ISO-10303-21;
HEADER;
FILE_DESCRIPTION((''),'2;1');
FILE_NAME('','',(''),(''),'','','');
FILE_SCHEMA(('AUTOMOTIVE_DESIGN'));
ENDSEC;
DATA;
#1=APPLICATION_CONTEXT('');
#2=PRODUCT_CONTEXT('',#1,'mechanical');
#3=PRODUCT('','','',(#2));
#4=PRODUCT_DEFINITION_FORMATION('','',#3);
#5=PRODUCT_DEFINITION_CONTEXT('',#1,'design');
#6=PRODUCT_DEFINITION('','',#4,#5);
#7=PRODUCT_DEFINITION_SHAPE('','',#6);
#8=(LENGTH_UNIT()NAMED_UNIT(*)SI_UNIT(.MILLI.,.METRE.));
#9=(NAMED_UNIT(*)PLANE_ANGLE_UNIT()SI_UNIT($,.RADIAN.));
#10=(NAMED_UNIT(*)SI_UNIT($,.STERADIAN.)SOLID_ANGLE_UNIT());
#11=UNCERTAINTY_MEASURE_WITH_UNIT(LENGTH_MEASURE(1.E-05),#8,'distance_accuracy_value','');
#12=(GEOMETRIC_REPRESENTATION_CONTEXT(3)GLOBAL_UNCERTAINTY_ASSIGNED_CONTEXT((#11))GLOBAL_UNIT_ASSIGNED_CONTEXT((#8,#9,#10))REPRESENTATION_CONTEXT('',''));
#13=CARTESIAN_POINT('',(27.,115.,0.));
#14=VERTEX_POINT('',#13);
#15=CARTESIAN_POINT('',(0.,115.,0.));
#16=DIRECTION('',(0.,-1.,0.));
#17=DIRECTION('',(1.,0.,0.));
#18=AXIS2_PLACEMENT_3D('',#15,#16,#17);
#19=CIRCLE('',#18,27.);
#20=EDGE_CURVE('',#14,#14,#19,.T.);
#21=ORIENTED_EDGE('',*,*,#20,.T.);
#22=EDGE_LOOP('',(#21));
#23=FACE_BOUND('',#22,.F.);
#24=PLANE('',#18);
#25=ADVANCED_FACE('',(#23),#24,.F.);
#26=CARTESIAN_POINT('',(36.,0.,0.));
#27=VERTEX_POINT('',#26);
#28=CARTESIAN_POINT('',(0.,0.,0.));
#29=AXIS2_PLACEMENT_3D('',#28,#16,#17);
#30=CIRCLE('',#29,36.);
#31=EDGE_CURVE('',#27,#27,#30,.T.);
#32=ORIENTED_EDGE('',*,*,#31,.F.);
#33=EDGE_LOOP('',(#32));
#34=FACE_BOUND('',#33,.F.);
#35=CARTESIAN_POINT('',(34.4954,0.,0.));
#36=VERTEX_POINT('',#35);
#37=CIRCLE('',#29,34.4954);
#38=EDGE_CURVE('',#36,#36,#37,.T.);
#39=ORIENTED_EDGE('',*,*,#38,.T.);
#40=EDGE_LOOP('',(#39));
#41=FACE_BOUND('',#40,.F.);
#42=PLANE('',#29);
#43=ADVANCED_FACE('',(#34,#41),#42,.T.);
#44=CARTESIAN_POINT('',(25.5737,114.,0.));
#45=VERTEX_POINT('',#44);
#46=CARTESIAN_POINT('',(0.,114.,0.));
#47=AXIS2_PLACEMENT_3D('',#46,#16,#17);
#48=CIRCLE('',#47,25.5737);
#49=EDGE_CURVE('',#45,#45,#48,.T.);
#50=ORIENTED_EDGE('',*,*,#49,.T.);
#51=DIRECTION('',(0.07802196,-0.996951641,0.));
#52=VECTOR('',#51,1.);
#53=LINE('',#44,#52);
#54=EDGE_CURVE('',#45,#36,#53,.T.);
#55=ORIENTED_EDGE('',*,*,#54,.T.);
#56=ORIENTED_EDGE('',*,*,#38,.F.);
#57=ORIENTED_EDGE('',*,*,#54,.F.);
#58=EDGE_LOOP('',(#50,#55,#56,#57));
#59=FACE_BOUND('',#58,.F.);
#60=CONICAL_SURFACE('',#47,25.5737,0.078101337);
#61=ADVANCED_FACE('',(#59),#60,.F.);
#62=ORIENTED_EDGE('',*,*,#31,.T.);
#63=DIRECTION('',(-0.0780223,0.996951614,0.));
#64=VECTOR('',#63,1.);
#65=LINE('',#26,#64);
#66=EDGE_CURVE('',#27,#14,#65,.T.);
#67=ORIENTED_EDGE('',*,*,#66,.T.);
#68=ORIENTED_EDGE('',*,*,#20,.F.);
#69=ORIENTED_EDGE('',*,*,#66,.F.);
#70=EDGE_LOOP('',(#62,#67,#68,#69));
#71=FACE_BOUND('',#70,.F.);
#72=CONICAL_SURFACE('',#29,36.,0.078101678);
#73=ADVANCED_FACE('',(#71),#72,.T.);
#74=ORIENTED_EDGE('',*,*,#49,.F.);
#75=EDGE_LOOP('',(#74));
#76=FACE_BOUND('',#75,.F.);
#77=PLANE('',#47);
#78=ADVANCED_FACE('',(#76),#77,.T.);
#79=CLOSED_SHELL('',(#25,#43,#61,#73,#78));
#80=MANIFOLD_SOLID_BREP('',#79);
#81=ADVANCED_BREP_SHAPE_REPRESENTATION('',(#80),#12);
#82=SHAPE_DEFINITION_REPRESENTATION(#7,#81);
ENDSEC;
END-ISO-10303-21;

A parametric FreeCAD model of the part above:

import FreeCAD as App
import Part
import Sketcher

V = App.Vector

doc = App.newDocument("Part")
body = doc.addObject("PartDesign::Body", "Body")

# Sketch on XY plane
sketch1 = body.newObject("Sketcher::SketchObject", "Sketch")
sketch1.AttachmentSupport = (doc.getObject("XY_Plane"), [""])
sketch1.MapMode = "FlatFace"
sketch1.addGeometry([
    Part.LineSegment(V(25.6, 114, 0), V(34.5, 0, 0)),  # 0
    Part.LineSegment(V(34.5, 0, 0), V(36, 0, 0)),  # 1
    Part.LineSegment(V(36, 0, 0), V(27, 115, 0)),  # 2
    Part.LineSegment(V(27, 115, 0), V(0, 115, 0)),  # 3
    Part.LineSegment(V(0, 115, 0), V(0, 114, 0)),  # 4
    Part.LineSegment(V(0, 114, 0), V(25.6, 114, 0)),  # 5
], False)
sketch1.addConstraint([
    Sketcher.Constraint("Coincident", 0, 2, 1, 1),
    Sketcher.Constraint("Coincident", 1, 2, 2, 1),
    Sketcher.Constraint("Coincident", 2, 2, 3, 1),
    Sketcher.Constraint("Coincident", 3, 2, 4, 1),
    Sketcher.Constraint("Coincident", 4, 2, 5, 1),
    Sketcher.Constraint("Coincident", 5, 2, 0, 1),
    Sketcher.Constraint("Horizontal", 1),
    Sketcher.Constraint("Horizontal", 3),
    Sketcher.Constraint("Vertical", 4),
    Sketcher.Constraint("Horizontal", 5),
    Sketcher.Constraint("PointOnObject", 0, 2, -1),
    Sketcher.Constraint("PointOnObject", 3, 2, -2),
    Sketcher.Constraint("Parallel", 0, 2),
    Sketcher.Constraint("DistanceX", 3, 2, 3, 1, 27.0),
    Sketcher.Constraint("DistanceY", 4, 2, 4, 1, 1.0),
    Sketcher.Constraint("DistanceX", -1, 1, 1, 2, 36.0),
    Sketcher.Constraint("DistanceY", -1, 1, 2, 2, 115.0),
    Sketcher.Constraint("DistanceX", 1, 1, 1, 2, 1.5046),
])
revolution = body.newObject("PartDesign::Revolution", "Revolution")
revolution.Profile = sketch1
revolution.ReferenceAxis = (sketch1, ["V_Axis"])
revolution.Angle = 360

doc.recompute()
